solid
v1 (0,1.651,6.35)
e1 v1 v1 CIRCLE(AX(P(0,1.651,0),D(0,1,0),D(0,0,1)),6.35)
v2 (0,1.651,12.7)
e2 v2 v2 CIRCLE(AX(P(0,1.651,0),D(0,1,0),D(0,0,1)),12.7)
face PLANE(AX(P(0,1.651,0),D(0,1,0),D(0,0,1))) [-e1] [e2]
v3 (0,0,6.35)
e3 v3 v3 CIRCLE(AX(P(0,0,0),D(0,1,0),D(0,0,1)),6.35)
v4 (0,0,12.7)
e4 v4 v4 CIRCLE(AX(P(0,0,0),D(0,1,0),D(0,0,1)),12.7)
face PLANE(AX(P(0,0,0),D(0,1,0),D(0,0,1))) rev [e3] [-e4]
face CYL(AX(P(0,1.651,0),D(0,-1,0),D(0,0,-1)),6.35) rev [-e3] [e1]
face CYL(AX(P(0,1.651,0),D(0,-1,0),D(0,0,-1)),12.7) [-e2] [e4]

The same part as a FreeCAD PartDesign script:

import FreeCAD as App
import Part
import Sketcher
from FreeCAD import Vector
Q = App.Units.Quantity

doc = App.newDocument("Part")
body = doc.addObject("PartDesign::Body", "Body")

# Sketch on XZ plane
sketch1 = doc.addObject("Sketcher::SketchObject", "Sketch")
body.addObject(sketch1)
sketch1.AttachmentSupport = (doc.XZ_Plane, [""])
sketch1.MapMode = "FlatFace"
sketch1.addGeometry([
    Part.Circle(Vector(0, 0, 0), Vector(0, 0, 1), 13),
    Part.Circle(Vector(0, 0, 0), Vector(0, 0, 1), 6),
], False)
sketch1.addConstraint([
    Sketcher.Constraint("Coincident", 0, 3, -1, 1),
    Sketcher.Constraint("Coincident", 1, 3, -1, 1),
    Sketcher.Constraint("Diameter", 0, Q("1 in")),
    Sketcher.Constraint("Diameter", 1, Q("0.5 in")),
])
pad1 = doc.addObject("PartDesign::Pad", "Pad")
body.addObject(pad1)
pad1.Profile = sketch1
pad1.Length = Q("0.065 in")
pad1.Reversed = True

doc.recompute()
